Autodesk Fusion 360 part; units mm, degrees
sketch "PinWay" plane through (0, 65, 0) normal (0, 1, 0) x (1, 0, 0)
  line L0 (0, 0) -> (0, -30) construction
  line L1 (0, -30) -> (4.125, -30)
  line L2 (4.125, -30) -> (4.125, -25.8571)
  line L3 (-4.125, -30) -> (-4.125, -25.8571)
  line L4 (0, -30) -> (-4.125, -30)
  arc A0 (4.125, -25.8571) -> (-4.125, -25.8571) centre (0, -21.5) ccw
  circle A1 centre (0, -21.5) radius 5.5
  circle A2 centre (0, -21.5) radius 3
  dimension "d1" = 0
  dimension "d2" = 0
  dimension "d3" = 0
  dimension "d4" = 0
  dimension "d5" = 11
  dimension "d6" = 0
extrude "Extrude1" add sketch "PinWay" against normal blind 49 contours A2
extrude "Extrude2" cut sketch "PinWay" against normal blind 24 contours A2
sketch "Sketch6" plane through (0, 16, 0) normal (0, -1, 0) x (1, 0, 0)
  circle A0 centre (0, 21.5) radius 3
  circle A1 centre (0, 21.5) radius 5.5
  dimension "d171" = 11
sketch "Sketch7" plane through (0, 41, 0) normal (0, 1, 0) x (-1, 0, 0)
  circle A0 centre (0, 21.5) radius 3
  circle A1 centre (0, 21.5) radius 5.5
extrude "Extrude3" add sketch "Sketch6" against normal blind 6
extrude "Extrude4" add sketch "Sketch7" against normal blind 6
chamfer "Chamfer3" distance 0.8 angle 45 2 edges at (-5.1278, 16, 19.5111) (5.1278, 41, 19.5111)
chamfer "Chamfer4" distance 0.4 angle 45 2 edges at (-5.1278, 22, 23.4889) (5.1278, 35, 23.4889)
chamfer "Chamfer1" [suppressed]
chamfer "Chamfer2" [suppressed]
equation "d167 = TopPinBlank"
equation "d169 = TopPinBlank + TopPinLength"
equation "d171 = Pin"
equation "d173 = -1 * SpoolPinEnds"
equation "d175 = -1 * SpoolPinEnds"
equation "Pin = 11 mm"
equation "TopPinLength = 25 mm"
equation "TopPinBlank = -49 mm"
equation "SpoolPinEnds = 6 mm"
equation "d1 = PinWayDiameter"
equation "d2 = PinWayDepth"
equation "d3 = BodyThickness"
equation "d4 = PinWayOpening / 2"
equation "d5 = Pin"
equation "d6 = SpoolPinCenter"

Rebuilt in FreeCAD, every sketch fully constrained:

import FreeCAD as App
import Part
import Sketcher
from FreeCAD import Vector
Q = App.Units.Quantity


def edges_at(feature, points):
    """Names of the edges that pass closest to the given points."""
    edges = feature.Shape.Edges
    near = lambda p: min(range(len(edges)), key=lambda i: edges[i].distToShape(Part.Vertex(*p))[0])
    return sorted({f"Edge{near(p) + 1}" for p in points})

doc = App.newDocument("Part")
body = doc.addObject("PartDesign::Body", "Body")

# Sketch on XZ plane
sketch1 = body.newObject("Sketcher::SketchObject", "Sketch")
sketch1.AttachmentSupport = (doc.getObject("XZ_Plane"), [""])
sketch1.MapMode = "FlatFace"
sketch1.AttachmentOffset = App.Placement(Vector(0, 0, -65), App.Rotation())
sketch1.addGeometry(Part.Circle(Vector(0, 21.5, 0), Vector(0, 0, 1), 3), False)
sketch1.addConstraint(Sketcher.Constraint("PointOnObject", 0, 3, -2))
sketch1.addConstraint(Sketcher.Constraint("Diameter", 0, Q("6 mm")))
sketch1.addConstraint(Sketcher.Constraint("DistanceY", -1, 1, 0, 3, Q("21.5 mm")))
pad1 = body.newObject("PartDesign::Pad", "Pad")
pad1.Profile = sketch1
pad1.Length = 49

# Sketch on XZ plane
sketch2 = body.newObject("Sketcher::SketchObject", "Sketch001")
sketch2.AttachmentSupport = (doc.getObject("XZ_Plane"), [""])
sketch2.MapMode = "FlatFace"
sketch2.AttachmentOffset = App.Placement(Vector(0, 0, -65), App.Rotation())
sketch2.addGeometry(Part.Circle(Vector(0, 21.5, 0), Vector(0, 0, 1), 3), False)
sketch2.addConstraint(Sketcher.Constraint("PointOnObject", 0, 3, -2))
sketch2.addConstraint(Sketcher.Constraint("Diameter", 0, Q("6 mm")))
sketch2.addConstraint(Sketcher.Constraint("DistanceY", -1, 1, 0, 3, Q("21.5 mm")))
pocket1 = body.newObject("PartDesign::Pocket", "Pocket")
pocket1.Profile = sketch2
pocket1.Length = 24
pocket1.Reversed = True

# Sketch on XZ plane
sketch3 = body.newObject("Sketcher::SketchObject", "Sketch002")
sketch3.AttachmentSupport = (doc.getObject("XZ_Plane"), [""])
sketch3.MapMode = "FlatFace"
sketch3.AttachmentOffset = App.Placement(Vector(0, 0, -16), App.Rotation())
sketch3.addGeometry(Part.Circle(Vector(0, 21.5, 0), Vector(0, 0, 1), 5.5), False)
sketch3.addGeometry(Part.Circle(Vector(0, 21.5, 0), Vector(0, 0, 1), 3), False)
sketch3.addConstraint(Sketcher.Constraint("Coincident", 1, 3, 0, 3))
sketch3.addConstraint(Sketcher.Constraint("PointOnObject", 0, 3, -2))
sketch3.addConstraint(Sketcher.Constraint("Diameter", 0, Q("11 mm")))
sketch3.addConstraint(Sketcher.Constraint("Diameter", 1, Q("6 mm")))
sketch3.addConstraint(Sketcher.Constraint("DistanceY", -1, 1, 0, 3, Q("21.5 mm")))
pad2 = body.newObject("PartDesign::Pad", "Pad001")
pad2.Profile = sketch3
pad2.Length = 6
pad2.Reversed = True

# Sketch on XZ plane
sketch4 = body.newObject("Sketcher::SketchObject", "Sketch003")
sketch4.AttachmentSupport = (doc.getObject("XZ_Plane"), [""])
sketch4.MapMode = "FlatFace"
sketch4.AttachmentOffset = App.Placement(Vector(0, 0, -41), App.Rotation())
sketch4.addGeometry(Part.Circle(Vector(0, 21.5, 0), Vector(0, 0, 1), 5.5), False)
sketch4.addGeometry(Part.Circle(Vector(0, 21.5, 0), Vector(0, 0, 1), 3), False)
sketch4.addConstraint(Sketcher.Constraint("Coincident", 1, 3, 0, 3))
sketch4.addConstraint(Sketcher.Constraint("PointOnObject", 0, 3, -2))
sketch4.addConstraint(Sketcher.Constraint("Diameter", 0, Q("11 mm")))
sketch4.addConstraint(Sketcher.Constraint("Diameter", 1, Q("6 mm")))
sketch4.addConstraint(Sketcher.Constraint("DistanceY", -1, 1, 0, 3, Q("21.5 mm")))
pad3 = body.newObject("PartDesign::Pad", "Pad002")
pad3.Profile = sketch4
pad3.Length = 6
doc.recompute()

chamfer = body.newObject("PartDesign::Chamfer", "Chamfer")
chamfer.Base = (pad3, edges_at(pad3, [(-5.128, 16, 19.511), (5.128, 41, 19.511)]))
chamfer.Size = 0.8
doc.recompute()

chamfer2 = body.newObject("PartDesign::Chamfer", "Chamfer001")
chamfer2.Base = (chamfer, edges_at(chamfer, [(-5.128, 22, 23.489), (5.128, 35, 23.489)]))
chamfer2.Size = 0.4

doc.recompute()
